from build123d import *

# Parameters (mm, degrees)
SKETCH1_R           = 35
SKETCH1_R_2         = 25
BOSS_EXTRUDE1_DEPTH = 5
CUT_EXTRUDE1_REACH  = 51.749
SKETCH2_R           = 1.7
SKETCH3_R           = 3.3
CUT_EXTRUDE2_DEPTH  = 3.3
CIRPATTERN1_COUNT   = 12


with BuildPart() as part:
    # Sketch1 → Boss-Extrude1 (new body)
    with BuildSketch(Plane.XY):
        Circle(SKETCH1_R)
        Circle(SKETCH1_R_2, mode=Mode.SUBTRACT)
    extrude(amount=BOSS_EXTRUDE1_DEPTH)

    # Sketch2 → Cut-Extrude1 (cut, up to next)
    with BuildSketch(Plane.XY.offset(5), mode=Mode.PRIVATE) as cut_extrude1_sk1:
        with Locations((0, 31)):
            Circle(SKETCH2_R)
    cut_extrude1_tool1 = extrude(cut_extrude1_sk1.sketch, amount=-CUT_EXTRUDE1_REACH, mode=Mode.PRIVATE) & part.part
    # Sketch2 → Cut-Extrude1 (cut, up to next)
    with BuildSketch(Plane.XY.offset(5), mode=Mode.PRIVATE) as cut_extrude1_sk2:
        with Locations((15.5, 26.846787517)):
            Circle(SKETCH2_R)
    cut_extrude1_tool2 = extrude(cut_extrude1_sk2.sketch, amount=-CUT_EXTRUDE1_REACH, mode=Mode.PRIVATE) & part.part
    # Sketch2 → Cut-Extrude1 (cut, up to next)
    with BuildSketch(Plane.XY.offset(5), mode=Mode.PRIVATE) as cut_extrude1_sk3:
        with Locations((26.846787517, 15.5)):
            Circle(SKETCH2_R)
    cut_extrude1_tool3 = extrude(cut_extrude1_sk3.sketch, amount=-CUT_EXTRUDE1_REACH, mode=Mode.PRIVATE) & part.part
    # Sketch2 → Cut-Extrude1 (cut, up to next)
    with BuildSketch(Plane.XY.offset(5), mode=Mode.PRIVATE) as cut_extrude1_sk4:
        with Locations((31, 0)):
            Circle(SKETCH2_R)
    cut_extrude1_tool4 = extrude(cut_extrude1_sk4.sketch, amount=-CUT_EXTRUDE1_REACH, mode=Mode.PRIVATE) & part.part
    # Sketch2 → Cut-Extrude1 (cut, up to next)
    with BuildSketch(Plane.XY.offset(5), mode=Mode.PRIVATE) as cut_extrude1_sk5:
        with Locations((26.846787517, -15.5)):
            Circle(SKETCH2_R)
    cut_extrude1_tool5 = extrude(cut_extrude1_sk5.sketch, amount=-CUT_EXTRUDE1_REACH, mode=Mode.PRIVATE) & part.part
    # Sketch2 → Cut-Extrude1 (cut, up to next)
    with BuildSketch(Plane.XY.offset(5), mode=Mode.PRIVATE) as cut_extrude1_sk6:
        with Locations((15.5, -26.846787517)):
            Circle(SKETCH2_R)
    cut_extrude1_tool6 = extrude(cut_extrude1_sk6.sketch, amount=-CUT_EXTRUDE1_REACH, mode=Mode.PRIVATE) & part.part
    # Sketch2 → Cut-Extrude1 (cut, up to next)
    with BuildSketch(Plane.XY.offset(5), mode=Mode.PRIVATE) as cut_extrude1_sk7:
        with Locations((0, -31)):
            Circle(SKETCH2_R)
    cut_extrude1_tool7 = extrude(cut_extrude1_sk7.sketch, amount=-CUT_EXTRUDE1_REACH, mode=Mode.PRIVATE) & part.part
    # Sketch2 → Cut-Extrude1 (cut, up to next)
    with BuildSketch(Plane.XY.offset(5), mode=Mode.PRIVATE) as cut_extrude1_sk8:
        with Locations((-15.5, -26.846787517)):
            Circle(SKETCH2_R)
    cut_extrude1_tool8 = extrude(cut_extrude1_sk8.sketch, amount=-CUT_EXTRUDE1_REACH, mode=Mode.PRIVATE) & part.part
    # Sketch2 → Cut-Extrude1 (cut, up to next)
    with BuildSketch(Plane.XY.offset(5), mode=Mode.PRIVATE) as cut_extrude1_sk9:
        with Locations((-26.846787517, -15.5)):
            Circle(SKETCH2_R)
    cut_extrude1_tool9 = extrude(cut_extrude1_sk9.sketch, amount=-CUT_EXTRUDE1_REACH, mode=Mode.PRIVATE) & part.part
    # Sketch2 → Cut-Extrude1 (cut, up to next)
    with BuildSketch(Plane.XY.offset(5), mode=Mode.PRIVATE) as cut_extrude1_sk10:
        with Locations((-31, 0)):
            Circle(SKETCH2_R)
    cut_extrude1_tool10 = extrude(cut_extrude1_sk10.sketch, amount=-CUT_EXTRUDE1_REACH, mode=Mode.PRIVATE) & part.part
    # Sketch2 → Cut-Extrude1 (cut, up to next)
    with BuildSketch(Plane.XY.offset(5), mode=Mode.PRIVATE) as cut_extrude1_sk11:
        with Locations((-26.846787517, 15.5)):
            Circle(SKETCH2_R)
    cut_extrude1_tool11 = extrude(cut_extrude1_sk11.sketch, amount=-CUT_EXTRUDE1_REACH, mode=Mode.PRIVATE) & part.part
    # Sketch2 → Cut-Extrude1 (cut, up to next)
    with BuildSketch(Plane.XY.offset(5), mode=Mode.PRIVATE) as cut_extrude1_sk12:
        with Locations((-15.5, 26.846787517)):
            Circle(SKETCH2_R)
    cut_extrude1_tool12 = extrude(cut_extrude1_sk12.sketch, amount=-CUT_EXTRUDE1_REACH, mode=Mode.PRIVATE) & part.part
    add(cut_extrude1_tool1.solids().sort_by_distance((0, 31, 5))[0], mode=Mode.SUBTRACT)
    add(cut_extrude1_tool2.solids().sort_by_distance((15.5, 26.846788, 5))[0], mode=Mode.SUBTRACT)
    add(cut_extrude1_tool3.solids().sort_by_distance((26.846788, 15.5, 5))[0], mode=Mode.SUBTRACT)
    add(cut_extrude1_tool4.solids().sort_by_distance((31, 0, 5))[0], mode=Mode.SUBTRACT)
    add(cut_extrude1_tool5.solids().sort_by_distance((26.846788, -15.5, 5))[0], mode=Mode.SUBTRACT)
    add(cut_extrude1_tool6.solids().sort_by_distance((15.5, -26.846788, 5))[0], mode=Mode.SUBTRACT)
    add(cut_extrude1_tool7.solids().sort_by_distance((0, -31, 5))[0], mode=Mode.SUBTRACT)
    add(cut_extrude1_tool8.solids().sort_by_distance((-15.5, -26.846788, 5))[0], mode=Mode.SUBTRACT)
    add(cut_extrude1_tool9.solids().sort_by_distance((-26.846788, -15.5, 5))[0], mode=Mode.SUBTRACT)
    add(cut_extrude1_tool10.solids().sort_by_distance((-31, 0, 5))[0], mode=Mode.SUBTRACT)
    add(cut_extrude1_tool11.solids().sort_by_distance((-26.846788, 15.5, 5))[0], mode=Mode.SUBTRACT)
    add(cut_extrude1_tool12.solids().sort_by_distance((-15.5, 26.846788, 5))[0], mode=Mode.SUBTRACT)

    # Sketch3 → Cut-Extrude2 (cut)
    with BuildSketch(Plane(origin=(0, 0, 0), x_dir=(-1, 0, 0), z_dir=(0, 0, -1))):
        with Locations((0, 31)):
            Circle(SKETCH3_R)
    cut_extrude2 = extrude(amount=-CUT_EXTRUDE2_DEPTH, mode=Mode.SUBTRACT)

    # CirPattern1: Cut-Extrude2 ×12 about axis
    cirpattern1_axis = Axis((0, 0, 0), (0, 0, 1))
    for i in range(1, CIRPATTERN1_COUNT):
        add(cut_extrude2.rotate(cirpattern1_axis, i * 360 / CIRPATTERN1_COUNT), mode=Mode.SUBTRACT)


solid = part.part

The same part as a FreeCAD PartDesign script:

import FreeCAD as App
import Part
import Sketcher

V = App.Vector

doc = App.newDocument("Part")
body = doc.addObject("PartDesign::Body", "Body")

sketch1 = body.newObject("Sketcher::SketchObject", "Sketch")
sketch1.AttachmentSupport = (doc.getObject("XY_Plane"), [""])
sketch1.MapMode = "FlatFace"
sketch1.addGeometry([
    Part.Circle(V(0, 0, 0), V(0, 0, 1), 35),
    Part.Circle(V(0, 0, 0), V(0, 0, 1), 25),
], False)
sketch1.addConstraint([
    Sketcher.Constraint("Coincident", 0, 3, -1, 1),
    Sketcher.Constraint("Coincident", 1, 3, -1, 1),
    Sketcher.Constraint("Diameter", 0, 70.0),
    Sketcher.Constraint("Diameter", 1, 50.0),
])
pad1 = body.newObject("PartDesign::Pad", "Pad")
pad1.Profile = sketch1
pad1.Length = 5

sketch2 = body.newObject("Sketcher::SketchObject", "Sketch001")
sketch2.AttachmentSupport = (doc.getObject("XY_Plane"), [""])
sketch2.MapMode = "FlatFace"
sketch2.AttachmentOffset = App.Placement(V(0, 0, 5), App.Rotation())
sketch2.addGeometry(Part.Circle(V(0, 31, 0), V(0, 0, 1), 1.7), False)
sketch2.addConstraint([
    Sketcher.Constraint("PointOnObject", 0, 3, -2),
    Sketcher.Constraint("Diameter", 0, 3.4),
    Sketcher.Constraint("DistanceY", -1, 1, 0, 3, 31.0),
])
pocket1 = body.newObject("PartDesign::Pocket", "Pocket")
pocket1.Profile = sketch2
pocket1.Type = "UpToFirst"

sketch3 = body.newObject("Sketcher::SketchObject", "Sketch002")
sketch3.AttachmentSupport = (doc.getObject("XY_Plane"), [""])
sketch3.MapMode = "FlatFace"
sketch3.AttachmentOffset = App.Placement(V(0, 0, 5), App.Rotation())
sketch3.addGeometry(Part.Circle(V(15.5, 26.8, 0), V(0, 0, 1), 1.7), False)
sketch3.addConstraint([
    Sketcher.Constraint("Diameter", 0, 3.4),
    Sketcher.Constraint("DistanceX", -1, 1, 0, 3, 15.5),
    Sketcher.Constraint("DistanceY", -1, 1, 0, 3, 26.846788),
])
pocket2 = body.newObject("PartDesign::Pocket", "Pocket001")
pocket2.Profile = sketch3
pocket2.Type = "UpToFirst"

sketch4 = body.newObject("Sketcher::SketchObject", "Sketch003")
sketch4.AttachmentSupport = (doc.getObject("XY_Plane"), [""])
sketch4.MapMode = "FlatFace"
sketch4.AttachmentOffset = App.Placement(V(0, 0, 5), App.Rotation())
sketch4.addGeometry(Part.Circle(V(26.8, 15.5, 0), V(0, 0, 1), 1.7), False)
sketch4.addConstraint([
    Sketcher.Constraint("Diameter", 0, 3.4),
    Sketcher.Constraint("DistanceY", -1, 1, 0, 3, 15.5),
    Sketcher.Constraint("DistanceX", -1, 1, 0, 3, 26.846788),
])
pocket3 = body.newObject("PartDesign::Pocket", "Pocket002")
pocket3.Profile = sketch4
pocket3.Type = "UpToFirst"

sketch5 = body.newObject("Sketcher::SketchObject", "Sketch004")
sketch5.AttachmentSupport = (doc.getObject("XY_Plane"), [""])
sketch5.MapMode = "FlatFace"
sketch5.AttachmentOffset = App.Placement(V(0, 0, 5), App.Rotation())
sketch5.addGeometry(Part.Circle(V(31, 0, 0), V(0, 0, 1), 1.7), False)
sketch5.addConstraint([
    Sketcher.Constraint("PointOnObject", 0, 3, -1),
    Sketcher.Constraint("Diameter", 0, 3.4),
    Sketcher.Constraint("DistanceX", -1, 1, 0, 3, 31.0),
])
pocket4 = body.newObject("PartDesign::Pocket", "Pocket003")
pocket4.Profile = sketch5
pocket4.Type = "UpToFirst"

sketch6 = body.newObject("Sketcher::SketchObject", "Sketch005")
sketch6.AttachmentSupport = (doc.getObject("XY_Plane"), [""])
sketch6.MapMode = "FlatFace"
sketch6.AttachmentOffset = App.Placement(V(0, 0, 5), App.Rotation())
sketch6.addGeometry(Part.Circle(V(26.8, -15.5, 0), V(0, 0, 1), 1.7), False)
sketch6.addConstraint([
    Sketcher.Constraint("Diameter", 0, 3.4),
    Sketcher.Constraint("DistanceY", 0, 3, -1, 1, 15.5),
    Sketcher.Constraint("DistanceX", -1, 1, 0, 3, 26.846788),
])
pocket5 = body.newObject("PartDesign::Pocket", "Pocket004")
pocket5.Profile = sketch6
pocket5.Type = "UpToFirst"

sketch7 = body.newObject("Sketcher::SketchObject", "Sketch006")
sketch7.AttachmentSupport = (doc.getObject("XY_Plane"), [""])
sketch7.MapMode = "FlatFace"
sketch7.AttachmentOffset = App.Placement(V(0, 0, 5), App.Rotation())
sketch7.addGeometry(Part.Circle(V(15.5, -26.8, 0), V(0, 0, 1), 1.7), False)
sketch7.addConstraint([
    Sketcher.Constraint("Diameter", 0, 3.4),
    Sketcher.Constraint("DistanceX", -1, 1, 0, 3, 15.5),
    Sketcher.Constraint("DistanceY", 0, 3, -1, 1, 26.846788),
])
pocket6 = body.newObject("PartDesign::Pocket", "Pocket005")
pocket6.Profile = sketch7
pocket6.Type = "UpToFirst"

sketch8 = body.newObject("Sketcher::SketchObject", "Sketch007")
sketch8.AttachmentSupport = (doc.getObject("XY_Plane"), [""])
sketch8.MapMode = "FlatFace"
sketch8.AttachmentOffset = App.Placement(V(0, 0, 5), App.Rotation())
sketch8.addGeometry(Part.Circle(V(0, -31, 0), V(0, 0, 1), 1.7), False)
sketch8.addConstraint([
    Sketcher.Constraint("PointOnObject", 0, 3, -2),
    Sketcher.Constraint("Diameter", 0, 3.4),
    Sketcher.Constraint("DistanceY", 0, 3, -1, 1, 31.0),
])
pocket7 = body.newObject("PartDesign::Pocket", "Pocket006")
pocket7.Profile = sketch8
pocket7.Type = "UpToFirst"

sketch9 = body.newObject("Sketcher::SketchObject", "Sketch008")
sketch9.AttachmentSupport = (doc.getObject("XY_Plane"), [""])
sketch9.MapMode = "FlatFace"
sketch9.AttachmentOffset = App.Placement(V(0, 0, 5), App.Rotation())
sketch9.addGeometry(Part.Circle(V(-15.5, -26.8, 0), V(0, 0, 1), 1.7), False)
sketch9.addConstraint([
    Sketcher.Constraint("Diameter", 0, 3.4),
    Sketcher.Constraint("DistanceX", 0, 3, -1, 1, 15.5),
    Sketcher.Constraint("DistanceY", 0, 3, -1, 1, 26.846788),
])
pocket8 = body.newObject("PartDesign::Pocket", "Pocket007")
pocket8.Profile = sketch9
pocket8.Type = "UpToFirst"

sketch10 = body.newObject("Sketcher::SketchObject", "Sketch009")
sketch10.AttachmentSupport = (doc.getObject("XY_Plane"), [""])
sketch10.MapMode = "FlatFace"
sketch10.AttachmentOffset = App.Placement(V(0, 0, 5), App.Rotation())
sketch10.addGeometry(Part.Circle(V(-26.8, -15.5, 0), V(0, 0, 1), 1.7), False)
sketch10.addConstraint([
    Sketcher.Constraint("Diameter", 0, 3.4),
    Sketcher.Constraint("DistanceY", 0, 3, -1, 1, 15.5),
    Sketcher.Constraint("DistanceX", 0, 3, -1, 1, 26.846788),
])
pocket9 = body.newObject("PartDesign::Pocket", "Pocket008")
pocket9.Profile = sketch10
pocket9.Type = "UpToFirst"

sketch11 = body.newObject("Sketcher::SketchObject", "Sketch010")
sketch11.AttachmentSupport = (doc.getObject("XY_Plane"), [""])
sketch11.MapMode = "FlatFace"
sketch11.AttachmentOffset = App.Placement(V(0, 0, 5), App.Rotation())
sketch11.addGeometry(Part.Circle(V(-31, 0, 0), V(0, 0, 1), 1.7), False)
sketch11.addConstraint([
    Sketcher.Constraint("PointOnObject", 0, 3, -1),
    Sketcher.Constraint("Diameter", 0, 3.4),
    Sketcher.Constraint("DistanceX", 0, 3, -1, 1, 31.0),
])
pocket10 = body.newObject("PartDesign::Pocket", "Pocket009")
pocket10.Profile = sketch11
pocket10.Type = "UpToFirst"

sketch12 = body.newObject("Sketcher::SketchObject", "Sketch011")
sketch12.AttachmentSupport = (doc.getObject("XY_Plane"), [""])
sketch12.MapMode = "FlatFace"
sketch12.AttachmentOffset = App.Placement(V(0, 0, 5), App.Rotation())
sketch12.addGeometry(Part.Circle(V(-26.8, 15.5, 0), V(0, 0, 1), 1.7), False)
sketch12.addConstraint([
    Sketcher.Constraint("Diameter", 0, 3.4),
    Sketcher.Constraint("DistanceY", -1, 1, 0, 3, 15.5),
    Sketcher.Constraint("DistanceX", 0, 3, -1, 1, 26.846788),
])
pocket11 = body.newObject("PartDesign::Pocket", "Pocket010")
pocket11.Profile = sketch12
pocket11.Type = "UpToFirst"

sketch13 = body.newObject("Sketcher::SketchObject", "Sketch012")
sketch13.AttachmentSupport = (doc.getObject("XY_Plane"), [""])
sketch13.MapMode = "FlatFace"
sketch13.AttachmentOffset = App.Placement(V(0, 0, 5), App.Rotation())
sketch13.addGeometry(Part.Circle(V(-15.5, 26.8, 0), V(0, 0, 1), 1.7), False)
sketch13.addConstraint([
    Sketcher.Constraint("Diameter", 0, 3.4),
    Sketcher.Constraint("DistanceX", 0, 3, -1, 1, 15.5),
    Sketcher.Constraint("DistanceY", -1, 1, 0, 3, 26.846788),
])
pocket12 = body.newObject("PartDesign::Pocket", "Pocket011")
pocket12.Profile = sketch13
pocket12.Type = "UpToFirst"

sketch14 = body.newObject("Sketcher::SketchObject", "Sketch013")
sketch14.AttachmentSupport = (doc.getObject("XY_Plane"), [""])
sketch14.MapMode = "FlatFace"
sketch14.addGeometry(Part.Circle(V(0, 31, 0), V(0, 0, 1), 3.3), False)
sketch14.addConstraint([
    Sketcher.Constraint("PointOnObject", 0, 3, -2),
    Sketcher.Constraint("Diameter", 0, 6.6),
    Sketcher.Constraint("DistanceY", -1, 1, 0, 3, 31.0),
])
pocket13 = body.newObject("PartDesign::Pocket", "Pocket012")
pocket13.Profile = sketch14
pocket13.Length = 3.3
pocket13.Reversed = True
doc.recompute()

polarpattern = body.newObject("PartDesign::PolarPattern", "PolarPattern")
polarpattern.Originals = [pocket13]
polarpattern.Axis = (doc.getObject("Z_Axis"), [""])
polarpattern.Angle = 360
polarpattern.Occurrences = 12
body.Tip = polarpattern

doc.recompute()
